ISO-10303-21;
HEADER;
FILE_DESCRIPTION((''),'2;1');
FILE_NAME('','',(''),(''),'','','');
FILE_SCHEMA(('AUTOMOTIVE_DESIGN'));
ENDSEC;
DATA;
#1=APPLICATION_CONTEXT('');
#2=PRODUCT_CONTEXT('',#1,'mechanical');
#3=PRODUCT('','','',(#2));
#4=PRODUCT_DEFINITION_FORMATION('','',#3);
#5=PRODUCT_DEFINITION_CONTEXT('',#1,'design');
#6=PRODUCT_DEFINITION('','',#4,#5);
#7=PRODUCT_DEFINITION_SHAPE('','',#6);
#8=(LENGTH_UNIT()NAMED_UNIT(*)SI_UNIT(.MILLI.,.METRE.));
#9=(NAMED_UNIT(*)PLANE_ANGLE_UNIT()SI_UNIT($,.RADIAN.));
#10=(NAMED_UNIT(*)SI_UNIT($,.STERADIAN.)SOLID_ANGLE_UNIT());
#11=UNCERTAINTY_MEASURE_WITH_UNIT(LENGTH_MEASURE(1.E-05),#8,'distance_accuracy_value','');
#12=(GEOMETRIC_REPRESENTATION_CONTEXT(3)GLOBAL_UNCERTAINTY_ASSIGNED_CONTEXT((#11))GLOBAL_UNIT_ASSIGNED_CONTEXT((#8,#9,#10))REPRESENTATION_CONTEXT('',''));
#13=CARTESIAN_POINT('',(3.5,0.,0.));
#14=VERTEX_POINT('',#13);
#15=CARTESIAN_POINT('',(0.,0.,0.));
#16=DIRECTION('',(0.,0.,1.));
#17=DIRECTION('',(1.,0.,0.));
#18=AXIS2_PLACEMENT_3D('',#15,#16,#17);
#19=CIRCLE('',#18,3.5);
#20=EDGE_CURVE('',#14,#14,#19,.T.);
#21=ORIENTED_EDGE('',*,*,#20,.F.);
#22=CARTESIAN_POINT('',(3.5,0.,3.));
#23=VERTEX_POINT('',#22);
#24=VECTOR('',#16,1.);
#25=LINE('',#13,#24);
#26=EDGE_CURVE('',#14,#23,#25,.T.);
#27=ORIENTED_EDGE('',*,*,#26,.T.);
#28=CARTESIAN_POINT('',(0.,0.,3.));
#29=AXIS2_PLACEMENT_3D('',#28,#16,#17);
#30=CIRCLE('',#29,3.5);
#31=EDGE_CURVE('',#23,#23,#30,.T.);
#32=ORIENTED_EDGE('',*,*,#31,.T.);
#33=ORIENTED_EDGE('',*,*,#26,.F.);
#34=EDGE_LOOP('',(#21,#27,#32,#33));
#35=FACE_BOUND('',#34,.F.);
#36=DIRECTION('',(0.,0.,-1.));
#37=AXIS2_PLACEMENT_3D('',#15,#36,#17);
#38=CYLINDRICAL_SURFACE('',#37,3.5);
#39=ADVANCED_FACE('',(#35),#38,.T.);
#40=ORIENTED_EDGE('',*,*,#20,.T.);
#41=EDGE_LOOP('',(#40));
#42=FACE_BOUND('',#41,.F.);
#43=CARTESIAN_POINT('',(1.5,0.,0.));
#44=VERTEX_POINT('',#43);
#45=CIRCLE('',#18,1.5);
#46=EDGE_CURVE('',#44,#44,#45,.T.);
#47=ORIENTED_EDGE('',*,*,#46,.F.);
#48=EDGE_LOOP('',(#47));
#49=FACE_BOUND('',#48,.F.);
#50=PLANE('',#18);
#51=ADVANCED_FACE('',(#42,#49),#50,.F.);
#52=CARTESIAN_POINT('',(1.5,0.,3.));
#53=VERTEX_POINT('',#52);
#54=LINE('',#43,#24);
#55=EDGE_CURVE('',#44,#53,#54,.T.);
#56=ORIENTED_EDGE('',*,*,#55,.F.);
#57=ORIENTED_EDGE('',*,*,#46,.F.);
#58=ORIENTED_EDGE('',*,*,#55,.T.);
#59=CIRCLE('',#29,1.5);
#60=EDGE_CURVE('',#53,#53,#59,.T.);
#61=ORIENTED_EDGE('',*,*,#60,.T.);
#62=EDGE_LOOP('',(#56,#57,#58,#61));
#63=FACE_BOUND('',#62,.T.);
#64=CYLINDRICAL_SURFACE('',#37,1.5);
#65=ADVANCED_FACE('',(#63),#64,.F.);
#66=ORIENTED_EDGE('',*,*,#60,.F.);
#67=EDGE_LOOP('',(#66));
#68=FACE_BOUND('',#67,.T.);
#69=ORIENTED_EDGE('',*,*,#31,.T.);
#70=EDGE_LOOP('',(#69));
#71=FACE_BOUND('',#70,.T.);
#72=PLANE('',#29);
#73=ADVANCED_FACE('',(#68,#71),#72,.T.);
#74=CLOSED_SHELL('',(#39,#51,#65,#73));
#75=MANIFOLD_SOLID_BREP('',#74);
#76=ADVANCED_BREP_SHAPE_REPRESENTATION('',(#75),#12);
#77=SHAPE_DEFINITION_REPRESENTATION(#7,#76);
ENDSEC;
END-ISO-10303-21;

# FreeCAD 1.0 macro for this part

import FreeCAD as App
import Part
import Sketcher

V = App.Vector
Q = App.Units.Quantity

doc = App.newDocument("Part")
body = doc.addObject("PartDesign::Body", "Body")

# Sketch on XY plane
sketch1 = body.newObject("Sketcher::SketchObject", "Sketch")
sketch1.AttachmentSupport = (doc.getObject("XY_Plane"), [""])
sketch1.MapMode = "FlatFace"
sketch1.addGeometry(Part.Circle(V(0, 0, 0), V(0, 0, 1), 3.5), False)
sketch1.addGeometry(Part.Circle(V(0, 0, 0), V(0, 0, 1), 1.5), False)
sketch1.addConstraint(Sketcher.Constraint("Coincident", 0, 3, -1, 1))
sketch1.addConstraint(Sketcher.Constraint("Coincident", 1, 3, -1, 1))
sketch1.addConstraint(Sketcher.Constraint("Diameter", 0, Q("7 mm")))
sketch1.addConstraint(Sketcher.Constraint("Diameter", 1, Q("3 mm")))
pad1 = body.newObject("PartDesign::Pad", "Pad")
pad1.Profile = sketch1
pad1.Length = 3

doc.recompute()
